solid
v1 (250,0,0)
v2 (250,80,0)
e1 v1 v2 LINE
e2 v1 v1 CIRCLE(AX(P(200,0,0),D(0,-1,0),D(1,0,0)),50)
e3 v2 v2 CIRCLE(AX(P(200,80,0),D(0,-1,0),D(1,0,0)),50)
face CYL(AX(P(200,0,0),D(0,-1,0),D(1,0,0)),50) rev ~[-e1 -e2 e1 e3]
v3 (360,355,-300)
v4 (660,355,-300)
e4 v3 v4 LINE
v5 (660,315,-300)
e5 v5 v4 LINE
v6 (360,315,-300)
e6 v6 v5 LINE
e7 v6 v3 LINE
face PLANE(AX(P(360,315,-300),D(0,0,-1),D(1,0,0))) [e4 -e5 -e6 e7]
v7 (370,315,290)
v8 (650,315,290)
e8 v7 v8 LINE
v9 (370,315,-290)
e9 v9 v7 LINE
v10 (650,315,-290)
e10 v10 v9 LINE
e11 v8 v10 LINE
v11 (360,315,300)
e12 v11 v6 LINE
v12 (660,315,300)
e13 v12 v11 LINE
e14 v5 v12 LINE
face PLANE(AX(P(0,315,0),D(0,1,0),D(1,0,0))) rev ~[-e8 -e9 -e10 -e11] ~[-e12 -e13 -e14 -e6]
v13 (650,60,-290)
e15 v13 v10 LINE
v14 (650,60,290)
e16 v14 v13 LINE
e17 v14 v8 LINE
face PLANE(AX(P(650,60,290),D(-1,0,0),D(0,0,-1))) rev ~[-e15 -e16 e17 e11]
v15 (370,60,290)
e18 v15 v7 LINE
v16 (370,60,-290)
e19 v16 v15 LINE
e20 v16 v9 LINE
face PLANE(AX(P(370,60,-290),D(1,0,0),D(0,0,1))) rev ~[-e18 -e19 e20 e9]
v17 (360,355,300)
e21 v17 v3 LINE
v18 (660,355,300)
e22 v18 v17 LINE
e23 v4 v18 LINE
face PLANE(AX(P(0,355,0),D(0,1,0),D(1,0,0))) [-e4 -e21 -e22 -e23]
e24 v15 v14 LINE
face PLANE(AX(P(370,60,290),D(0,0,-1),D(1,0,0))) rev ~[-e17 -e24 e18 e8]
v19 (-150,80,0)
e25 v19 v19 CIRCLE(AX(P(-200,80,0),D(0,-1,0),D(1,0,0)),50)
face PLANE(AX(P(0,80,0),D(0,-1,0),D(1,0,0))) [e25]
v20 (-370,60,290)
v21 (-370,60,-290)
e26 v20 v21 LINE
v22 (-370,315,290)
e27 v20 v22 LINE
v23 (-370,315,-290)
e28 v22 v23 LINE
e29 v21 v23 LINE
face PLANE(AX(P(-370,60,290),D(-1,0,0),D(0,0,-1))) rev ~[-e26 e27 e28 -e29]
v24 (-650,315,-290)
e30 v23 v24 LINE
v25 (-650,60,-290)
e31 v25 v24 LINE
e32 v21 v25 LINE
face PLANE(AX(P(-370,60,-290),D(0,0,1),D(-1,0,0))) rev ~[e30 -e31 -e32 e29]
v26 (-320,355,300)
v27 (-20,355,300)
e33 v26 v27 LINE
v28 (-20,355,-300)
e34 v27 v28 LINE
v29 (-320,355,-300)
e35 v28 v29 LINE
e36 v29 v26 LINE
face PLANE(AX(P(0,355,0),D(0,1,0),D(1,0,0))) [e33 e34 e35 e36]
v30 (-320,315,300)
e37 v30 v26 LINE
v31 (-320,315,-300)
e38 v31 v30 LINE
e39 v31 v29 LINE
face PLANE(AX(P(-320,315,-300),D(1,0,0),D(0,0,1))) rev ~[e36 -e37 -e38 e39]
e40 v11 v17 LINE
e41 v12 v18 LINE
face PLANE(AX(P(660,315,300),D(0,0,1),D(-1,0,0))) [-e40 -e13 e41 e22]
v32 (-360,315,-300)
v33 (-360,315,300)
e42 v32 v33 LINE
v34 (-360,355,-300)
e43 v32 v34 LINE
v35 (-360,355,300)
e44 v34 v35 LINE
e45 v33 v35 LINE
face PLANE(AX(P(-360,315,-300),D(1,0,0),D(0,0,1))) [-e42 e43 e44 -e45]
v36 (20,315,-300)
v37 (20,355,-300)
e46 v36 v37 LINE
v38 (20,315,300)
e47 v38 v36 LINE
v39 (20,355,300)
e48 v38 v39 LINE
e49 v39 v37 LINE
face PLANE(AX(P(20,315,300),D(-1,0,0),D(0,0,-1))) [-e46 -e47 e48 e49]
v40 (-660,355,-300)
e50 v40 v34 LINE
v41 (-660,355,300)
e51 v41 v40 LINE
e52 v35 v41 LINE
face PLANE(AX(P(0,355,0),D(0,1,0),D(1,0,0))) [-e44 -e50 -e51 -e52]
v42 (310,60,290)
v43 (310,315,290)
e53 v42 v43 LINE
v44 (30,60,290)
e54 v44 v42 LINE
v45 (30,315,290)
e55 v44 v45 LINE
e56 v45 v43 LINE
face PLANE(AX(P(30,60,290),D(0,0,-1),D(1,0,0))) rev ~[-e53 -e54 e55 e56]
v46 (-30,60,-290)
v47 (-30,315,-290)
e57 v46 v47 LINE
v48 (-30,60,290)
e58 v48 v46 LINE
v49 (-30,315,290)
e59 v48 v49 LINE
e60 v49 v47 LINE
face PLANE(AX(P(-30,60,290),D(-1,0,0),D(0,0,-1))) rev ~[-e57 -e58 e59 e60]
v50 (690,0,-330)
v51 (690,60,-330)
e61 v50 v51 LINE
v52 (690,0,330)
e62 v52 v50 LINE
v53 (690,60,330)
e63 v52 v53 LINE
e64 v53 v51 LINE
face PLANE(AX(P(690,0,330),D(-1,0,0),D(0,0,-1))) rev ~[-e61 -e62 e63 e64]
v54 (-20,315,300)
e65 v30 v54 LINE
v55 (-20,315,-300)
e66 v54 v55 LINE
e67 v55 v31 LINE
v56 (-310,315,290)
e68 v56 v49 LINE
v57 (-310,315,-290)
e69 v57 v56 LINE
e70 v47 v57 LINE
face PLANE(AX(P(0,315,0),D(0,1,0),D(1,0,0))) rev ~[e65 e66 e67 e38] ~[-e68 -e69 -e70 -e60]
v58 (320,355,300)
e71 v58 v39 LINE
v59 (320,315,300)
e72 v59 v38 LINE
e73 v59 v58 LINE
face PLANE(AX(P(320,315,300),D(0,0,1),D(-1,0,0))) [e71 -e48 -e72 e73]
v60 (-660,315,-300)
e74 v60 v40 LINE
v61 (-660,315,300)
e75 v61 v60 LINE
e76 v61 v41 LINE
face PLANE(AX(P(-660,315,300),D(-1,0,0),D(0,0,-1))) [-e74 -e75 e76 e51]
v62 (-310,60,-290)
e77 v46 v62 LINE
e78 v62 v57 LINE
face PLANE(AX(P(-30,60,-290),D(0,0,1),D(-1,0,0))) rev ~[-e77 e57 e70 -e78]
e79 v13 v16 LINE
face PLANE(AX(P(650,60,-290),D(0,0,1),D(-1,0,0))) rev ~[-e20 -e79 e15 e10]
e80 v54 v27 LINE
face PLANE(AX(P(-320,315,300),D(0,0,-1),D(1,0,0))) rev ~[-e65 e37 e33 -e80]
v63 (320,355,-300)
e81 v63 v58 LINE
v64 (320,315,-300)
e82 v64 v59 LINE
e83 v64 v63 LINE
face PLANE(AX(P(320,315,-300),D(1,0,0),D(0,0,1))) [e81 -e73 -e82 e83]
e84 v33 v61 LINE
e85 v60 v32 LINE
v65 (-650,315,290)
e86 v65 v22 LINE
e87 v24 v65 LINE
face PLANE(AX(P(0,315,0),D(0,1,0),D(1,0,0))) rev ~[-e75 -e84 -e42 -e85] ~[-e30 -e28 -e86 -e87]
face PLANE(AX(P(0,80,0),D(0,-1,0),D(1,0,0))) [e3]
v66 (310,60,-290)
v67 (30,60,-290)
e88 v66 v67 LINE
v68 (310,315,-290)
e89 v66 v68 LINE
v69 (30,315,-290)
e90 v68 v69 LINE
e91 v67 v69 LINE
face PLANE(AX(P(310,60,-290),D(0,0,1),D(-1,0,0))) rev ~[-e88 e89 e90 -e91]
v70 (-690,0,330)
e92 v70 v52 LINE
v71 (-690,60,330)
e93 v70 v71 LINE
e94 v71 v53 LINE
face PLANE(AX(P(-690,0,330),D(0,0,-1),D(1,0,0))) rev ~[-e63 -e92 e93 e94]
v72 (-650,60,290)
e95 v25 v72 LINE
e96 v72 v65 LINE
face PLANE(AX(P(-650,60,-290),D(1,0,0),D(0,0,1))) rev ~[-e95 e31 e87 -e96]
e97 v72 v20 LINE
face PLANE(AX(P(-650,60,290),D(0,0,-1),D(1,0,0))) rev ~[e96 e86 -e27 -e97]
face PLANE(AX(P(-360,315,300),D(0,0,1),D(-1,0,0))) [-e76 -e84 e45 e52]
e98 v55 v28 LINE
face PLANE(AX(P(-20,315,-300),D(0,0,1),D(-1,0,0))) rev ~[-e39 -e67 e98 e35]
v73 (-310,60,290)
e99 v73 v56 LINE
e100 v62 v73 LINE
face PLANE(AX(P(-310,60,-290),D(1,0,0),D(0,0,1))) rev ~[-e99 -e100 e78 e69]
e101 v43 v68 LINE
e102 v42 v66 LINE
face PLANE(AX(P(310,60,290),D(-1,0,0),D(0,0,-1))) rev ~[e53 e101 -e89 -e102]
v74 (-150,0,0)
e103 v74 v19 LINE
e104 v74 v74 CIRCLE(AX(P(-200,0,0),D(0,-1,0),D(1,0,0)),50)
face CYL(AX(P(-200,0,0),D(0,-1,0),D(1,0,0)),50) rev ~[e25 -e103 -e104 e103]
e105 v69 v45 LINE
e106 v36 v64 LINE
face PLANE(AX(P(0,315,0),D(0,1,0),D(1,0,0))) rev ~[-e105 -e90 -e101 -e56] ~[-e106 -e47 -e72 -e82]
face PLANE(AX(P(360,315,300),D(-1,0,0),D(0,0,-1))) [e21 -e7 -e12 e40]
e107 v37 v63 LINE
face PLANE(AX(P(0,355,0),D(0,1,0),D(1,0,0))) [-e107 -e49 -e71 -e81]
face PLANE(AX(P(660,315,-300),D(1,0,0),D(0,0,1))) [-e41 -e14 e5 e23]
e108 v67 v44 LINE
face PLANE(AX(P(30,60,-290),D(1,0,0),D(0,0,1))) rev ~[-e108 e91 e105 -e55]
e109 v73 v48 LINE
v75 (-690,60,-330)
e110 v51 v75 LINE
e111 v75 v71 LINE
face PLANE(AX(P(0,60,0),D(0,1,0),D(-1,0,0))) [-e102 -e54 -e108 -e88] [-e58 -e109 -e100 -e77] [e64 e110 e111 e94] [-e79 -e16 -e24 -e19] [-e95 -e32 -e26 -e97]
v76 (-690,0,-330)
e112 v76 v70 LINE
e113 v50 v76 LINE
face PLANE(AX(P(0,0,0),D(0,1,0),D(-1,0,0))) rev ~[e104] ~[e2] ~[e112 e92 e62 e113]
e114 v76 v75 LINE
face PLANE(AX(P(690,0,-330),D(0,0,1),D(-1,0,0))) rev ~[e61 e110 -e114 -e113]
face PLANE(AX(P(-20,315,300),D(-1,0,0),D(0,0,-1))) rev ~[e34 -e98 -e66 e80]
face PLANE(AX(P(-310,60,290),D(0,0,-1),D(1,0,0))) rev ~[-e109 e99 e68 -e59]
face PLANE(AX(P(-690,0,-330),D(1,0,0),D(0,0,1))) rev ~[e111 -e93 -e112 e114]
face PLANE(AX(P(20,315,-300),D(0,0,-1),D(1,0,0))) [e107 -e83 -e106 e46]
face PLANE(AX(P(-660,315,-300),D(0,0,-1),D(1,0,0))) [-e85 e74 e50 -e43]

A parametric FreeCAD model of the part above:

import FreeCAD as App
import Part
import Sketcher
from FreeCAD import Vector
Q = App.Units.Quantity

doc = App.newDocument("Part")
params = doc.addObject("Spreadsheet::Sheet", "Params")
for row, (alias, value) in enumerate([
    ("sketch1_width", "1380 mm"),
    ("sketch1_height", "660 mm"),
    ("pad1_length", "60 mm"),
    ("sketch2_height", "580 mm"),
    ("pad2_length", "255 mm"),
    ("sketch3_width", "300 mm"),
    ("sketch3_height", "600 mm"),
    ("pad3_length", "40 mm"),
    ("sketch4_diameter", "100 mm"),
    ("pocket1_length", "80 mm"),
], start=1):
    params.set(f"A{row}", alias)
    params.set(f"B{row}", "=" + value)
    params.setAlias(f"B{row}", alias)

body = doc.addObject("PartDesign::Body", "Body")

sketch1 = body.newObject("Sketcher::SketchObject", "Sketch")
sketch1.AttachmentSupport = (doc.getObject("XZ_Plane"), [""])
sketch1.MapMode = "FlatFace"
sketch1.addGeometry(Part.LineSegment(Vector(690, 330, 0), Vector(690, -330, 0)), False)
sketch1.addGeometry(Part.LineSegment(Vector(690, -330, 0), Vector(-690, -330, 0)), False)
sketch1.addGeometry(Part.LineSegment(Vector(-690, -330, 0), Vector(-690, 330, 0)), False)
sketch1.addGeometry(Part.LineSegment(Vector(-690, 330, 0), Vector(690, 330, 0)), False)
sketch1.addConstraint(Sketcher.Constraint("Coincident", 0, 2, 1, 1))
sketch1.addConstraint(Sketcher.Constraint("Coincident", 1, 2, 2, 1))
sketch1.addConstraint(Sketcher.Constraint("Coincident", 2, 2, 3, 1))
sketch1.addConstraint(Sketcher.Constraint("Coincident", 3, 2, 0, 1))
sketch1.addConstraint(Sketcher.Constraint("Vertical", 0))
sketch1.addConstraint(Sketcher.Constraint("Horizontal", 1))
sketch1.addConstraint(Sketcher.Constraint("Vertical", 2))
sketch1.addConstraint(Sketcher.Constraint("Horizontal", 3))
sketch1.addConstraint(Sketcher.Constraint("Symmetric", 0, 2, 2, 2, -1, 1))
sketch1.addConstraint(Sketcher.Constraint("DistanceX", 1, 2, 1, 1, Q("1380 mm")))
sketch1.addConstraint(Sketcher.Constraint("DistanceY", 0, 2, 0, 1, Q("660 mm")))
sketch1.setExpression("Constraints[9]", "Params.sketch1_width")
sketch1.setExpression("Constraints[10]", "Params.sketch1_height")
pad1 = body.newObject("PartDesign::Pad", "Pad")
pad1.Profile = sketch1
pad1.setExpression("Length", "Params.pad1_length")
pad1.Reversed = True

sketch2 = body.newObject("Sketcher::SketchObject", "Sketch001")
sketch2.AttachmentSupport = (doc.getObject("XZ_Plane"), [""])
sketch2.MapMode = "FlatFace"
sketch2.AttachmentOffset = App.Placement(Vector(0, 0, -60), App.Rotation())
sketch2.addGeometry(Part.LineSegment(Vector(-370, 290, 0), Vector(-370, -290, 0)), False)
sketch2.addGeometry(Part.LineSegment(Vector(-370, -290, 0), Vector(-650, -290, 0)), False)
sketch2.addGeometry(Part.LineSegment(Vector(-650, -290, 0), Vector(-650, 290, 0)), False)
sketch2.addGeometry(Part.LineSegment(Vector(-650, 290, 0), Vector(-370, 290, 0)), False)
sketch2.addGeometry(Part.LineSegment(Vector(-310, 290, 0), Vector(-30, 290, 0)), False)
sketch2.addGeometry(Part.LineSegment(Vector(-30, 290, 0), Vector(-30, -290, 0)), False)
sketch2.addGeometry(Part.LineSegment(Vector(-30, -290, 0), Vector(-310, -290, 0)), False)
sketch2.addGeometry(Part.LineSegment(Vector(-310, -290, 0), Vector(-310, 290, 0)), False)
sketch2.addGeometry(Part.LineSegment(Vector(30, 290, 0), Vector(310, 290, 0)), False)
sketch2.addGeometry(Part.LineSegment(Vector(310, 290, 0), Vector(310, -290, 0)), False)
sketch2.addGeometry(Part.LineSegment(Vector(310, -290, 0), Vector(30, -290, 0)), False)
sketch2.addGeometry(Part.LineSegment(Vector(30, -290, 0), Vector(30, 290, 0)), False)
sketch2.addGeometry(Part.LineSegment(Vector(370, 290, 0), Vector(650, 290, 0)), False)
sketch2.addGeometry(Part.LineSegment(Vector(650, 290, 0), Vector(650, -290, 0)), False)
sketch2.addGeometry(Part.LineSegment(Vector(650, -290, 0), Vector(370, -290, 0)), False)
sketch2.addGeometry(Part.LineSegment(Vector(370, -290, 0), Vector(370, 290, 0)), False)
sketch2.addConstraint(Sketcher.Constraint("Coincident", 0, 2, 1, 1))
sketch2.addConstraint(Sketcher.Constraint("Coincident", 1, 2, 2, 1))
sketch2.addConstraint(Sketcher.Constraint("Coincident", 2, 2, 3, 1))
sketch2.addConstraint(Sketcher.Constraint("Coincident", 3, 2, 0, 1))
sketch2.addConstraint(Sketcher.Constraint("Coincident", 4, 2, 5, 1))
sketch2.addConstraint(Sketcher.Constraint("Coincident", 5, 2, 6, 1))
sketch2.addConstraint(Sketcher.Constraint("Coincident", 6, 2, 7, 1))
sketch2.addConstraint(Sketcher.Constraint("Coincident", 7, 2, 4, 1))
sketch2.addConstraint(Sketcher.Constraint("Coincident", 8, 2, 9, 1))
sketch2.addConstraint(Sketcher.Constraint("Coincident", 9, 2, 10, 1))
sketch2.addConstraint(Sketcher.Constraint("Coincident", 10, 2, 11, 1))
sketch2.addConstraint(Sketcher.Constraint("Coincident", 11, 2, 8, 1))
sketch2.addConstraint(Sketcher.Constraint("Coincident", 12, 2, 13, 1))
sketch2.addConstraint(Sketcher.Constraint("Coincident", 13, 2, 14, 1))
sketch2.addConstraint(Sketcher.Constraint("Coincident", 14, 2, 15, 1))
sketch2.addConstraint(Sketcher.Constraint("Coincident", 15, 2, 12, 1))
sketch2.addConstraint(Sketcher.Constraint("Vertical", 0))
sketch2.addConstraint(Sketcher.Constraint("Horizontal", 1))
sketch2.addConstraint(Sketcher.Constraint("Vertical", 2))
sketch2.addConstraint(Sketcher.Constraint("Horizontal", 3))
sketch2.addConstraint(Sketcher.Constraint("Horizontal", 4))
sketch2.addConstraint(Sketcher.Constraint("Vertical", 5))
sketch2.addConstraint(Sketcher.Constraint("Horizontal", 6))
sketch2.addConstraint(Sketcher.Constraint("Vertical", 7))
sketch2.addConstraint(Sketcher.Constraint("Horizontal", 8))
sketch2.addConstraint(Sketcher.Constraint("Vertical", 9))
sketch2.addConstraint(Sketcher.Constraint("Horizontal", 10))
sketch2.addConstraint(Sketcher.Constraint("Vertical", 11))
sketch2.addConstraint(Sketcher.Constraint("Horizontal", 12))
sketch2.addConstraint(Sketcher.Constraint("Vertical", 13))
sketch2.addConstraint(Sketcher.Constraint("Horizontal", 14))
sketch2.addConstraint(Sketcher.Constraint("Vertical", 15))
sketch2.addConstraint(Sketcher.Constraint("Symmetric", 6, 2, 8, 2, -1, 1))
sketch2.addConstraint(Sketcher.Constraint("Symmetric", 4, 2, 10, 2, -1, 1))
sketch2.addConstraint(Sketcher.Constraint("Symmetric", 1, 2, 12, 2, -1, 1))
sketch2.addConstraint(Sketcher.Constraint("Symmetric", 3, 2, 14, 2, -1, 1))
sketch2.addConstraint(Sketcher.Constraint("Horizontal", 3, 2, 4, 2))
sketch2.addConstraint(Sketcher.Constraint("Horizontal", 1, 2, 5, 2))
sketch2.addConstraint(Sketcher.Constraint("Horizontal", 7, 2, 8, 2))
sketch2.addConstraint(Sketcher.Constraint("Equal", 3, 4))
sketch2.addConstraint(Sketcher.Constraint("DistanceX", 4, 2, -1, 1, Q("30 mm")))
sketch2.addConstraint(Sketcher.Constraint("DistanceX", 3, 2, 4, 2, Q("340 mm")))
sketch2.addConstraint(Sketcher.Constraint("DistanceX", 4, 2, 8, 2, Q("340 mm")))
sketch2.addConstraint(Sketcher.Constraint("DistanceY", 0, 2, 0, 1, Q("580 mm")))
sketch2.setExpression("Constraints[43]", "Params.sketch2_height")
pad2 = body.newObject("PartDesign::Pad", "Pad001")
pad2.Profile = sketch2
pad2.setExpression("Length", "Params.pad2_length")
pad2.Reversed = True

sketch3 = body.newObject("Sketcher::SketchObject", "Sketch002")
sketch3.AttachmentSupport = (doc.getObject("XZ_Plane"), [""])
sketch3.MapMode = "FlatFace"
sketch3.AttachmentOffset = App.Placement(Vector(0, 0, -315), App.Rotation())
sketch3.addGeometry(Part.LineSegment(Vector(-360, 300, 0), Vector(-360, -300, 0)), False)
sketch3.addGeometry(Part.LineSegment(Vector(-360, -300, 0), Vector(-660, -300, 0)), False)
sketch3.addGeometry(Part.LineSegment(Vector(-660, -300, 0), Vector(-660, 300, 0)), False)
sketch3.addGeometry(Part.LineSegment(Vector(-660, 300, 0), Vector(-360, 300, 0)), False)
sketch3.addGeometry(Part.LineSegment(Vector(-20, 300, 0), Vector(-20, -300, 0)), False)
sketch3.addGeometry(Part.LineSegment(Vector(-20, -300, 0), Vector(-320, -300, 0)), False)
sketch3.addGeometry(Part.LineSegment(Vector(-320, -300, 0), Vector(-320, 300, 0)), False)
sketch3.addGeometry(Part.LineSegment(Vector(-320, 300, 0), Vector(-20, 300, 0)), False)
sketch3.addGeometry(Part.LineSegment(Vector(320, -300, 0), Vector(20, -300, 0)), False)
sketch3.addGeometry(Part.LineSegment(Vector(20, -300, 0), Vector(20, 300, 0)), False)
sketch3.addGeometry(Part.LineSegment(Vector(20, 300, 0), Vector(320, 300, 0)), False)
sketch3.addGeometry(Part.LineSegment(Vector(320, 300, 0), Vector(320, -300, 0)), False)
sketch3.addGeometry(Part.LineSegment(Vector(360, -300, 0), Vector(360, 300, 0)), False)
sketch3.addGeometry(Part.LineSegment(Vector(360, 300, 0), Vector(660, 300, 0)), False)
sketch3.addGeometry(Part.LineSegment(Vector(660, 300, 0), Vector(660, -300, 0)), False)
sketch3.addGeometry(Part.LineSegment(Vector(660, -300, 0), Vector(360, -300, 0)), False)
sketch3.addConstraint(Sketcher.Constraint("Coincident", 0, 2, 1, 1))
sketch3.addConstraint(Sketcher.Constraint("Coincident", 1, 2, 2, 1))
sketch3.addConstraint(Sketcher.Constraint("Coincident", 2, 2, 3, 1))
sketch3.addConstraint(Sketcher.Constraint("Coincident", 3, 2, 0, 1))
sketch3.addConstraint(Sketcher.Constraint("Coincident", 4, 2, 5, 1))
sketch3.addConstraint(Sketcher.Constraint("Coincident", 5, 2, 6, 1))
sketch3.addConstraint(Sketcher.Constraint("Coincident", 6, 2, 7, 1))
sketch3.addConstraint(Sketcher.Constraint("Coincident", 7, 2, 4, 1))
sketch3.addConstraint(Sketcher.Constraint("Coincident", 8, 2, 9, 1))
sketch3.addConstraint(Sketcher.Constraint("Coincident", 9, 2, 10, 1))
sketch3.addConstraint(Sketcher.Constraint("Coincident", 10, 2, 11, 1))
sketch3.addConstraint(Sketcher.Constraint("Coincident", 11, 2, 8, 1))
sketch3.addConstraint(Sketcher.Constraint("Coincident", 12, 2, 13, 1))
sketch3.addConstraint(Sketcher.Constraint("Coincident", 13, 2, 14, 1))
sketch3.addConstraint(Sketcher.Constraint("Coincident", 14, 2, 15, 1))
sketch3.addConstraint(Sketcher.Constraint("Coincident", 15, 2, 12, 1))
sketch3.addConstraint(Sketcher.Constraint("Vertical", 0))
sketch3.addConstraint(Sketcher.Constraint("Horizontal", 1))
sketch3.addConstraint(Sketcher.Constraint("Vertical", 2))
sketch3.addConstraint(Sketcher.Constraint("Horizontal", 3))
sketch3.addConstraint(Sketcher.Constraint("Vertical", 4))
sketch3.addConstraint(Sketcher.Constraint("Horizontal", 5))
sketch3.addConstraint(Sketcher.Constraint("Vertical", 6))
sketch3.addConstraint(Sketcher.Constraint("Horizontal", 7))
sketch3.addConstraint(Sketcher.Constraint("Horizontal", 8))
sketch3.addConstraint(Sketcher.Constraint("Vertical", 9))
sketch3.addConstraint(Sketcher.Constraint("Horizontal", 10))
sketch3.addConstraint(Sketcher.Constraint("Vertical", 11))
sketch3.addConstraint(Sketcher.Constraint("Vertical", 12))
sketch3.addConstraint(Sketcher.Constraint("Horizontal", 13))
sketch3.addConstraint(Sketcher.Constraint("Vertical", 14))
sketch3.addConstraint(Sketcher.Constraint("Horizontal", 15))
sketch3.addConstraint(Sketcher.Constraint("Symmetric", 7, 2, 8, 2, -1, 1))
sketch3.addConstraint(Sketcher.Constraint("Symmetric", 5, 2, 10, 2, -1, 1))
sketch3.addConstraint(Sketcher.Constraint("Symmetric", 0, 2, 12, 2, -1, 1))
sketch3.addConstraint(Sketcher.Constraint("Symmetric", 2, 2, 14, 2, -1, 1))
sketch3.addConstraint(Sketcher.Constraint("Horizontal", 1, 2, 4, 2))
sketch3.addConstraint(Sketcher.Constraint("Horizontal", 3, 2, 6, 2))
sketch3.addConstraint(Sketcher.Constraint("Horizontal", 5, 2, 8, 2))
sketch3.addConstraint(Sketcher.Constraint("Equal", 3, 5))
sketch3.addConstraint(Sketcher.Constraint("DistanceX", 1, 2, 1, 1, Q("300 mm")))
sketch3.addConstraint(Sketcher.Constraint("DistanceY", 0, 2, 0, 1, Q("600 mm")))
sketch3.addConstraint(Sketcher.Constraint("DistanceX", 0, 2, -1, 1, Q("360 mm")))
sketch3.addConstraint(Sketcher.Constraint("DistanceX", 4, 2, -1, 1, Q("20 mm")))
sketch3.setExpression("Constraints[40]", "Params.sketch3_width")
sketch3.setExpression("Constraints[41]", "Params.sketch3_height")
pad3 = body.newObject("PartDesign::Pad", "Pad002")
pad3.Profile = sketch3
pad3.setExpression("Length", "Params.pad3_length")
pad3.Reversed = True

sketch4 = body.newObject("Sketcher::SketchObject", "Sketch003")
sketch4.AttachmentSupport = (doc.getObject("XZ_Plane"), [""])
sketch4.MapMode = "FlatFace"
sketch4.addGeometry(Part.Circle(Vector(-200, 0, 0), Vector(0, 0, 1), 50), False)
sketch4.addGeometry(Part.Circle(Vector(200, 0, 0), Vector(0, 0, 1), 50), False)
sketch4.addConstraint(Sketcher.Constraint("Equal", 0, 1))
sketch4.addConstraint(Sketcher.Constraint("Symmetric", 0, 3, 1, 3, -1, 1))
sketch4.addConstraint(Sketcher.Constraint("PointOnObject", 0, 3, -1))
sketch4.addConstraint(Sketcher.Constraint("Diameter", 0, Q("100 mm")))
sketch4.addConstraint(Sketcher.Constraint("DistanceX", 0, 3, 1, 3, Q("400 mm")))
sketch4.setExpression("Constraints[3]", "Params.sketch4_diameter")
pocket1 = body.newObject("PartDesign::Pocket", "Pocket")
pocket1.Profile = sketch4
pocket1.setExpression("Length", "Params.pocket1_length")

doc.recompute()
